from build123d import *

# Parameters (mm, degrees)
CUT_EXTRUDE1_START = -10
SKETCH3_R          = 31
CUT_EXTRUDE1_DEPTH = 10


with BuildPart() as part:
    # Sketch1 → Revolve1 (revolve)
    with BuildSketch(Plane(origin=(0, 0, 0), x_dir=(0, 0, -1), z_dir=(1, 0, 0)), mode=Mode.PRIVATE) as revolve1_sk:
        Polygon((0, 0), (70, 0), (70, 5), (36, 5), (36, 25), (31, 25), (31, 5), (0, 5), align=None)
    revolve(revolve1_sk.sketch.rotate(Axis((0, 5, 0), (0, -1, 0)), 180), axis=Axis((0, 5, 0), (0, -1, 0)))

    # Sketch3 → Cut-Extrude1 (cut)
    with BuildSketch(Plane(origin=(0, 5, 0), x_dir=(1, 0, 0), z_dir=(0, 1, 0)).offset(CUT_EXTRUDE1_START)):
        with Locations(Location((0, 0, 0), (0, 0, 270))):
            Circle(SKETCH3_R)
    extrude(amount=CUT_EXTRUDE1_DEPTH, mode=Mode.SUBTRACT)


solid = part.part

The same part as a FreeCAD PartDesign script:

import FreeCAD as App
import Part
import Sketcher
Q = App.Units.Quantity

doc = App.newDocument("Part")
body = doc.addObject("PartDesign::Body", "Body")

sketch1 = body.newObject("Sketcher::SketchObject", "Sketch")
sketch1.AttachmentSupport = (doc.getObject("YZ_Plane"), [""])
sketch1.MapMode = "FlatFace"
sketch1.addGeometry(Part.LineSegment(App.Vector(0, 0, 0), App.Vector(0, -70, 0)), False)
sketch1.addGeometry(Part.LineSegment(App.Vector(0, -70, 0), App.Vector(5, -70, 0)), False)
sketch1.addGeometry(Part.LineSegment(App.Vector(5, -70, 0), App.Vector(5, -36, 0)), False)
sketch1.addGeometry(Part.LineSegment(App.Vector(5, -36, 0), App.Vector(25, -36, 0)), False)
sketch1.addGeometry(Part.LineSegment(App.Vector(25, -36, 0), App.Vector(25, -31, 0)), False)
sketch1.addGeometry(Part.LineSegment(App.Vector(25, -31, 0), App.Vector(5, -31, 0)), False)
sketch1.addGeometry(Part.LineSegment(App.Vector(5, -31, 0), App.Vector(5, 0, 0)), False)
sketch1.addGeometry(Part.LineSegment(App.Vector(5, 0, 0), App.Vector(0, 0, 0)), False)
sketch1.addConstraint(Sketcher.Constraint("Coincident", 0, 2, 1, 1))
sketch1.addConstraint(Sketcher.Constraint("Coincident", 1, 2, 2, 1))
sketch1.addConstraint(Sketcher.Constraint("Coincident", 2, 2, 3, 1))
sketch1.addConstraint(Sketcher.Constraint("Coincident", 3, 2, 4, 1))
sketch1.addConstraint(Sketcher.Constraint("Coincident", 4, 2, 5, 1))
sketch1.addConstraint(Sketcher.Constraint("Coincident", 5, 2, 6, 1))
sketch1.addConstraint(Sketcher.Constraint("Coincident", 6, 2, 7, 1))
sketch1.addConstraint(Sketcher.Constraint("Coincident", 7, 2, 0, 1))
sketch1.addConstraint(Sketcher.Constraint("Vertical", 0))
sketch1.addConstraint(Sketcher.Constraint("Horizontal", 1))
sketch1.addConstraint(Sketcher.Constraint("Vertical", 2))
sketch1.addConstraint(Sketcher.Constraint("Horizontal", 3))
sketch1.addConstraint(Sketcher.Constraint("Vertical", 4))
sketch1.addConstraint(Sketcher.Constraint("Horizontal", 5))
sketch1.addConstraint(Sketcher.Constraint("Vertical", 6))
sketch1.addConstraint(Sketcher.Constraint("Horizontal", 7))
sketch1.addConstraint(Sketcher.Constraint("Coincident", 7, 2, -1, 1))
sketch1.addConstraint(Sketcher.Constraint("Vertical", 2, 2, 5, 2))
sketch1.addConstraint(Sketcher.Constraint("Equal", 7, 4))
sketch1.addConstraint(Sketcher.Constraint("DistanceX", 1, 1, 1, 2, Q("5 mm")))
sketch1.addConstraint(Sketcher.Constraint("DistanceX", 3, 1, 3, 2, Q("20 mm")))
sketch1.addConstraint(Sketcher.Constraint("DistanceY", 0, 2, 0, 1, Q("70 mm")))
sketch1.addConstraint(Sketcher.Constraint("DistanceY", 2, 1, 2, 2, Q("34 mm")))
revolution = body.newObject("PartDesign::Revolution", "Revolution")
revolution.Profile = sketch1
revolution.ReferenceAxis = (sketch1, ["H_Axis"])
revolution.Angle = 360

sketch2 = body.newObject("Sketcher::SketchObject", "Sketch001")
sketch2.AttachmentSupport = (doc.getObject("XZ_Plane"), [""])
sketch2.MapMode = "FlatFace"
sketch2.AttachmentOffset = App.Placement(App.Vector(0, 0, 5), App.Rotation())
sketch2.addGeometry(Part.Circle(App.Vector(0, 0, 0), App.Vector(0, 0, 1), 31), False)
sketch2.addConstraint(Sketcher.Constraint("Coincident", 0, 3, -1, 1))
sketch2.addConstraint(Sketcher.Constraint("Diameter", 0, Q("62 mm")))
pocket1 = body.newObject("PartDesign::Pocket", "Pocket")
pocket1.Profile = sketch2
pocket1.Length = 10

doc.recompute()
